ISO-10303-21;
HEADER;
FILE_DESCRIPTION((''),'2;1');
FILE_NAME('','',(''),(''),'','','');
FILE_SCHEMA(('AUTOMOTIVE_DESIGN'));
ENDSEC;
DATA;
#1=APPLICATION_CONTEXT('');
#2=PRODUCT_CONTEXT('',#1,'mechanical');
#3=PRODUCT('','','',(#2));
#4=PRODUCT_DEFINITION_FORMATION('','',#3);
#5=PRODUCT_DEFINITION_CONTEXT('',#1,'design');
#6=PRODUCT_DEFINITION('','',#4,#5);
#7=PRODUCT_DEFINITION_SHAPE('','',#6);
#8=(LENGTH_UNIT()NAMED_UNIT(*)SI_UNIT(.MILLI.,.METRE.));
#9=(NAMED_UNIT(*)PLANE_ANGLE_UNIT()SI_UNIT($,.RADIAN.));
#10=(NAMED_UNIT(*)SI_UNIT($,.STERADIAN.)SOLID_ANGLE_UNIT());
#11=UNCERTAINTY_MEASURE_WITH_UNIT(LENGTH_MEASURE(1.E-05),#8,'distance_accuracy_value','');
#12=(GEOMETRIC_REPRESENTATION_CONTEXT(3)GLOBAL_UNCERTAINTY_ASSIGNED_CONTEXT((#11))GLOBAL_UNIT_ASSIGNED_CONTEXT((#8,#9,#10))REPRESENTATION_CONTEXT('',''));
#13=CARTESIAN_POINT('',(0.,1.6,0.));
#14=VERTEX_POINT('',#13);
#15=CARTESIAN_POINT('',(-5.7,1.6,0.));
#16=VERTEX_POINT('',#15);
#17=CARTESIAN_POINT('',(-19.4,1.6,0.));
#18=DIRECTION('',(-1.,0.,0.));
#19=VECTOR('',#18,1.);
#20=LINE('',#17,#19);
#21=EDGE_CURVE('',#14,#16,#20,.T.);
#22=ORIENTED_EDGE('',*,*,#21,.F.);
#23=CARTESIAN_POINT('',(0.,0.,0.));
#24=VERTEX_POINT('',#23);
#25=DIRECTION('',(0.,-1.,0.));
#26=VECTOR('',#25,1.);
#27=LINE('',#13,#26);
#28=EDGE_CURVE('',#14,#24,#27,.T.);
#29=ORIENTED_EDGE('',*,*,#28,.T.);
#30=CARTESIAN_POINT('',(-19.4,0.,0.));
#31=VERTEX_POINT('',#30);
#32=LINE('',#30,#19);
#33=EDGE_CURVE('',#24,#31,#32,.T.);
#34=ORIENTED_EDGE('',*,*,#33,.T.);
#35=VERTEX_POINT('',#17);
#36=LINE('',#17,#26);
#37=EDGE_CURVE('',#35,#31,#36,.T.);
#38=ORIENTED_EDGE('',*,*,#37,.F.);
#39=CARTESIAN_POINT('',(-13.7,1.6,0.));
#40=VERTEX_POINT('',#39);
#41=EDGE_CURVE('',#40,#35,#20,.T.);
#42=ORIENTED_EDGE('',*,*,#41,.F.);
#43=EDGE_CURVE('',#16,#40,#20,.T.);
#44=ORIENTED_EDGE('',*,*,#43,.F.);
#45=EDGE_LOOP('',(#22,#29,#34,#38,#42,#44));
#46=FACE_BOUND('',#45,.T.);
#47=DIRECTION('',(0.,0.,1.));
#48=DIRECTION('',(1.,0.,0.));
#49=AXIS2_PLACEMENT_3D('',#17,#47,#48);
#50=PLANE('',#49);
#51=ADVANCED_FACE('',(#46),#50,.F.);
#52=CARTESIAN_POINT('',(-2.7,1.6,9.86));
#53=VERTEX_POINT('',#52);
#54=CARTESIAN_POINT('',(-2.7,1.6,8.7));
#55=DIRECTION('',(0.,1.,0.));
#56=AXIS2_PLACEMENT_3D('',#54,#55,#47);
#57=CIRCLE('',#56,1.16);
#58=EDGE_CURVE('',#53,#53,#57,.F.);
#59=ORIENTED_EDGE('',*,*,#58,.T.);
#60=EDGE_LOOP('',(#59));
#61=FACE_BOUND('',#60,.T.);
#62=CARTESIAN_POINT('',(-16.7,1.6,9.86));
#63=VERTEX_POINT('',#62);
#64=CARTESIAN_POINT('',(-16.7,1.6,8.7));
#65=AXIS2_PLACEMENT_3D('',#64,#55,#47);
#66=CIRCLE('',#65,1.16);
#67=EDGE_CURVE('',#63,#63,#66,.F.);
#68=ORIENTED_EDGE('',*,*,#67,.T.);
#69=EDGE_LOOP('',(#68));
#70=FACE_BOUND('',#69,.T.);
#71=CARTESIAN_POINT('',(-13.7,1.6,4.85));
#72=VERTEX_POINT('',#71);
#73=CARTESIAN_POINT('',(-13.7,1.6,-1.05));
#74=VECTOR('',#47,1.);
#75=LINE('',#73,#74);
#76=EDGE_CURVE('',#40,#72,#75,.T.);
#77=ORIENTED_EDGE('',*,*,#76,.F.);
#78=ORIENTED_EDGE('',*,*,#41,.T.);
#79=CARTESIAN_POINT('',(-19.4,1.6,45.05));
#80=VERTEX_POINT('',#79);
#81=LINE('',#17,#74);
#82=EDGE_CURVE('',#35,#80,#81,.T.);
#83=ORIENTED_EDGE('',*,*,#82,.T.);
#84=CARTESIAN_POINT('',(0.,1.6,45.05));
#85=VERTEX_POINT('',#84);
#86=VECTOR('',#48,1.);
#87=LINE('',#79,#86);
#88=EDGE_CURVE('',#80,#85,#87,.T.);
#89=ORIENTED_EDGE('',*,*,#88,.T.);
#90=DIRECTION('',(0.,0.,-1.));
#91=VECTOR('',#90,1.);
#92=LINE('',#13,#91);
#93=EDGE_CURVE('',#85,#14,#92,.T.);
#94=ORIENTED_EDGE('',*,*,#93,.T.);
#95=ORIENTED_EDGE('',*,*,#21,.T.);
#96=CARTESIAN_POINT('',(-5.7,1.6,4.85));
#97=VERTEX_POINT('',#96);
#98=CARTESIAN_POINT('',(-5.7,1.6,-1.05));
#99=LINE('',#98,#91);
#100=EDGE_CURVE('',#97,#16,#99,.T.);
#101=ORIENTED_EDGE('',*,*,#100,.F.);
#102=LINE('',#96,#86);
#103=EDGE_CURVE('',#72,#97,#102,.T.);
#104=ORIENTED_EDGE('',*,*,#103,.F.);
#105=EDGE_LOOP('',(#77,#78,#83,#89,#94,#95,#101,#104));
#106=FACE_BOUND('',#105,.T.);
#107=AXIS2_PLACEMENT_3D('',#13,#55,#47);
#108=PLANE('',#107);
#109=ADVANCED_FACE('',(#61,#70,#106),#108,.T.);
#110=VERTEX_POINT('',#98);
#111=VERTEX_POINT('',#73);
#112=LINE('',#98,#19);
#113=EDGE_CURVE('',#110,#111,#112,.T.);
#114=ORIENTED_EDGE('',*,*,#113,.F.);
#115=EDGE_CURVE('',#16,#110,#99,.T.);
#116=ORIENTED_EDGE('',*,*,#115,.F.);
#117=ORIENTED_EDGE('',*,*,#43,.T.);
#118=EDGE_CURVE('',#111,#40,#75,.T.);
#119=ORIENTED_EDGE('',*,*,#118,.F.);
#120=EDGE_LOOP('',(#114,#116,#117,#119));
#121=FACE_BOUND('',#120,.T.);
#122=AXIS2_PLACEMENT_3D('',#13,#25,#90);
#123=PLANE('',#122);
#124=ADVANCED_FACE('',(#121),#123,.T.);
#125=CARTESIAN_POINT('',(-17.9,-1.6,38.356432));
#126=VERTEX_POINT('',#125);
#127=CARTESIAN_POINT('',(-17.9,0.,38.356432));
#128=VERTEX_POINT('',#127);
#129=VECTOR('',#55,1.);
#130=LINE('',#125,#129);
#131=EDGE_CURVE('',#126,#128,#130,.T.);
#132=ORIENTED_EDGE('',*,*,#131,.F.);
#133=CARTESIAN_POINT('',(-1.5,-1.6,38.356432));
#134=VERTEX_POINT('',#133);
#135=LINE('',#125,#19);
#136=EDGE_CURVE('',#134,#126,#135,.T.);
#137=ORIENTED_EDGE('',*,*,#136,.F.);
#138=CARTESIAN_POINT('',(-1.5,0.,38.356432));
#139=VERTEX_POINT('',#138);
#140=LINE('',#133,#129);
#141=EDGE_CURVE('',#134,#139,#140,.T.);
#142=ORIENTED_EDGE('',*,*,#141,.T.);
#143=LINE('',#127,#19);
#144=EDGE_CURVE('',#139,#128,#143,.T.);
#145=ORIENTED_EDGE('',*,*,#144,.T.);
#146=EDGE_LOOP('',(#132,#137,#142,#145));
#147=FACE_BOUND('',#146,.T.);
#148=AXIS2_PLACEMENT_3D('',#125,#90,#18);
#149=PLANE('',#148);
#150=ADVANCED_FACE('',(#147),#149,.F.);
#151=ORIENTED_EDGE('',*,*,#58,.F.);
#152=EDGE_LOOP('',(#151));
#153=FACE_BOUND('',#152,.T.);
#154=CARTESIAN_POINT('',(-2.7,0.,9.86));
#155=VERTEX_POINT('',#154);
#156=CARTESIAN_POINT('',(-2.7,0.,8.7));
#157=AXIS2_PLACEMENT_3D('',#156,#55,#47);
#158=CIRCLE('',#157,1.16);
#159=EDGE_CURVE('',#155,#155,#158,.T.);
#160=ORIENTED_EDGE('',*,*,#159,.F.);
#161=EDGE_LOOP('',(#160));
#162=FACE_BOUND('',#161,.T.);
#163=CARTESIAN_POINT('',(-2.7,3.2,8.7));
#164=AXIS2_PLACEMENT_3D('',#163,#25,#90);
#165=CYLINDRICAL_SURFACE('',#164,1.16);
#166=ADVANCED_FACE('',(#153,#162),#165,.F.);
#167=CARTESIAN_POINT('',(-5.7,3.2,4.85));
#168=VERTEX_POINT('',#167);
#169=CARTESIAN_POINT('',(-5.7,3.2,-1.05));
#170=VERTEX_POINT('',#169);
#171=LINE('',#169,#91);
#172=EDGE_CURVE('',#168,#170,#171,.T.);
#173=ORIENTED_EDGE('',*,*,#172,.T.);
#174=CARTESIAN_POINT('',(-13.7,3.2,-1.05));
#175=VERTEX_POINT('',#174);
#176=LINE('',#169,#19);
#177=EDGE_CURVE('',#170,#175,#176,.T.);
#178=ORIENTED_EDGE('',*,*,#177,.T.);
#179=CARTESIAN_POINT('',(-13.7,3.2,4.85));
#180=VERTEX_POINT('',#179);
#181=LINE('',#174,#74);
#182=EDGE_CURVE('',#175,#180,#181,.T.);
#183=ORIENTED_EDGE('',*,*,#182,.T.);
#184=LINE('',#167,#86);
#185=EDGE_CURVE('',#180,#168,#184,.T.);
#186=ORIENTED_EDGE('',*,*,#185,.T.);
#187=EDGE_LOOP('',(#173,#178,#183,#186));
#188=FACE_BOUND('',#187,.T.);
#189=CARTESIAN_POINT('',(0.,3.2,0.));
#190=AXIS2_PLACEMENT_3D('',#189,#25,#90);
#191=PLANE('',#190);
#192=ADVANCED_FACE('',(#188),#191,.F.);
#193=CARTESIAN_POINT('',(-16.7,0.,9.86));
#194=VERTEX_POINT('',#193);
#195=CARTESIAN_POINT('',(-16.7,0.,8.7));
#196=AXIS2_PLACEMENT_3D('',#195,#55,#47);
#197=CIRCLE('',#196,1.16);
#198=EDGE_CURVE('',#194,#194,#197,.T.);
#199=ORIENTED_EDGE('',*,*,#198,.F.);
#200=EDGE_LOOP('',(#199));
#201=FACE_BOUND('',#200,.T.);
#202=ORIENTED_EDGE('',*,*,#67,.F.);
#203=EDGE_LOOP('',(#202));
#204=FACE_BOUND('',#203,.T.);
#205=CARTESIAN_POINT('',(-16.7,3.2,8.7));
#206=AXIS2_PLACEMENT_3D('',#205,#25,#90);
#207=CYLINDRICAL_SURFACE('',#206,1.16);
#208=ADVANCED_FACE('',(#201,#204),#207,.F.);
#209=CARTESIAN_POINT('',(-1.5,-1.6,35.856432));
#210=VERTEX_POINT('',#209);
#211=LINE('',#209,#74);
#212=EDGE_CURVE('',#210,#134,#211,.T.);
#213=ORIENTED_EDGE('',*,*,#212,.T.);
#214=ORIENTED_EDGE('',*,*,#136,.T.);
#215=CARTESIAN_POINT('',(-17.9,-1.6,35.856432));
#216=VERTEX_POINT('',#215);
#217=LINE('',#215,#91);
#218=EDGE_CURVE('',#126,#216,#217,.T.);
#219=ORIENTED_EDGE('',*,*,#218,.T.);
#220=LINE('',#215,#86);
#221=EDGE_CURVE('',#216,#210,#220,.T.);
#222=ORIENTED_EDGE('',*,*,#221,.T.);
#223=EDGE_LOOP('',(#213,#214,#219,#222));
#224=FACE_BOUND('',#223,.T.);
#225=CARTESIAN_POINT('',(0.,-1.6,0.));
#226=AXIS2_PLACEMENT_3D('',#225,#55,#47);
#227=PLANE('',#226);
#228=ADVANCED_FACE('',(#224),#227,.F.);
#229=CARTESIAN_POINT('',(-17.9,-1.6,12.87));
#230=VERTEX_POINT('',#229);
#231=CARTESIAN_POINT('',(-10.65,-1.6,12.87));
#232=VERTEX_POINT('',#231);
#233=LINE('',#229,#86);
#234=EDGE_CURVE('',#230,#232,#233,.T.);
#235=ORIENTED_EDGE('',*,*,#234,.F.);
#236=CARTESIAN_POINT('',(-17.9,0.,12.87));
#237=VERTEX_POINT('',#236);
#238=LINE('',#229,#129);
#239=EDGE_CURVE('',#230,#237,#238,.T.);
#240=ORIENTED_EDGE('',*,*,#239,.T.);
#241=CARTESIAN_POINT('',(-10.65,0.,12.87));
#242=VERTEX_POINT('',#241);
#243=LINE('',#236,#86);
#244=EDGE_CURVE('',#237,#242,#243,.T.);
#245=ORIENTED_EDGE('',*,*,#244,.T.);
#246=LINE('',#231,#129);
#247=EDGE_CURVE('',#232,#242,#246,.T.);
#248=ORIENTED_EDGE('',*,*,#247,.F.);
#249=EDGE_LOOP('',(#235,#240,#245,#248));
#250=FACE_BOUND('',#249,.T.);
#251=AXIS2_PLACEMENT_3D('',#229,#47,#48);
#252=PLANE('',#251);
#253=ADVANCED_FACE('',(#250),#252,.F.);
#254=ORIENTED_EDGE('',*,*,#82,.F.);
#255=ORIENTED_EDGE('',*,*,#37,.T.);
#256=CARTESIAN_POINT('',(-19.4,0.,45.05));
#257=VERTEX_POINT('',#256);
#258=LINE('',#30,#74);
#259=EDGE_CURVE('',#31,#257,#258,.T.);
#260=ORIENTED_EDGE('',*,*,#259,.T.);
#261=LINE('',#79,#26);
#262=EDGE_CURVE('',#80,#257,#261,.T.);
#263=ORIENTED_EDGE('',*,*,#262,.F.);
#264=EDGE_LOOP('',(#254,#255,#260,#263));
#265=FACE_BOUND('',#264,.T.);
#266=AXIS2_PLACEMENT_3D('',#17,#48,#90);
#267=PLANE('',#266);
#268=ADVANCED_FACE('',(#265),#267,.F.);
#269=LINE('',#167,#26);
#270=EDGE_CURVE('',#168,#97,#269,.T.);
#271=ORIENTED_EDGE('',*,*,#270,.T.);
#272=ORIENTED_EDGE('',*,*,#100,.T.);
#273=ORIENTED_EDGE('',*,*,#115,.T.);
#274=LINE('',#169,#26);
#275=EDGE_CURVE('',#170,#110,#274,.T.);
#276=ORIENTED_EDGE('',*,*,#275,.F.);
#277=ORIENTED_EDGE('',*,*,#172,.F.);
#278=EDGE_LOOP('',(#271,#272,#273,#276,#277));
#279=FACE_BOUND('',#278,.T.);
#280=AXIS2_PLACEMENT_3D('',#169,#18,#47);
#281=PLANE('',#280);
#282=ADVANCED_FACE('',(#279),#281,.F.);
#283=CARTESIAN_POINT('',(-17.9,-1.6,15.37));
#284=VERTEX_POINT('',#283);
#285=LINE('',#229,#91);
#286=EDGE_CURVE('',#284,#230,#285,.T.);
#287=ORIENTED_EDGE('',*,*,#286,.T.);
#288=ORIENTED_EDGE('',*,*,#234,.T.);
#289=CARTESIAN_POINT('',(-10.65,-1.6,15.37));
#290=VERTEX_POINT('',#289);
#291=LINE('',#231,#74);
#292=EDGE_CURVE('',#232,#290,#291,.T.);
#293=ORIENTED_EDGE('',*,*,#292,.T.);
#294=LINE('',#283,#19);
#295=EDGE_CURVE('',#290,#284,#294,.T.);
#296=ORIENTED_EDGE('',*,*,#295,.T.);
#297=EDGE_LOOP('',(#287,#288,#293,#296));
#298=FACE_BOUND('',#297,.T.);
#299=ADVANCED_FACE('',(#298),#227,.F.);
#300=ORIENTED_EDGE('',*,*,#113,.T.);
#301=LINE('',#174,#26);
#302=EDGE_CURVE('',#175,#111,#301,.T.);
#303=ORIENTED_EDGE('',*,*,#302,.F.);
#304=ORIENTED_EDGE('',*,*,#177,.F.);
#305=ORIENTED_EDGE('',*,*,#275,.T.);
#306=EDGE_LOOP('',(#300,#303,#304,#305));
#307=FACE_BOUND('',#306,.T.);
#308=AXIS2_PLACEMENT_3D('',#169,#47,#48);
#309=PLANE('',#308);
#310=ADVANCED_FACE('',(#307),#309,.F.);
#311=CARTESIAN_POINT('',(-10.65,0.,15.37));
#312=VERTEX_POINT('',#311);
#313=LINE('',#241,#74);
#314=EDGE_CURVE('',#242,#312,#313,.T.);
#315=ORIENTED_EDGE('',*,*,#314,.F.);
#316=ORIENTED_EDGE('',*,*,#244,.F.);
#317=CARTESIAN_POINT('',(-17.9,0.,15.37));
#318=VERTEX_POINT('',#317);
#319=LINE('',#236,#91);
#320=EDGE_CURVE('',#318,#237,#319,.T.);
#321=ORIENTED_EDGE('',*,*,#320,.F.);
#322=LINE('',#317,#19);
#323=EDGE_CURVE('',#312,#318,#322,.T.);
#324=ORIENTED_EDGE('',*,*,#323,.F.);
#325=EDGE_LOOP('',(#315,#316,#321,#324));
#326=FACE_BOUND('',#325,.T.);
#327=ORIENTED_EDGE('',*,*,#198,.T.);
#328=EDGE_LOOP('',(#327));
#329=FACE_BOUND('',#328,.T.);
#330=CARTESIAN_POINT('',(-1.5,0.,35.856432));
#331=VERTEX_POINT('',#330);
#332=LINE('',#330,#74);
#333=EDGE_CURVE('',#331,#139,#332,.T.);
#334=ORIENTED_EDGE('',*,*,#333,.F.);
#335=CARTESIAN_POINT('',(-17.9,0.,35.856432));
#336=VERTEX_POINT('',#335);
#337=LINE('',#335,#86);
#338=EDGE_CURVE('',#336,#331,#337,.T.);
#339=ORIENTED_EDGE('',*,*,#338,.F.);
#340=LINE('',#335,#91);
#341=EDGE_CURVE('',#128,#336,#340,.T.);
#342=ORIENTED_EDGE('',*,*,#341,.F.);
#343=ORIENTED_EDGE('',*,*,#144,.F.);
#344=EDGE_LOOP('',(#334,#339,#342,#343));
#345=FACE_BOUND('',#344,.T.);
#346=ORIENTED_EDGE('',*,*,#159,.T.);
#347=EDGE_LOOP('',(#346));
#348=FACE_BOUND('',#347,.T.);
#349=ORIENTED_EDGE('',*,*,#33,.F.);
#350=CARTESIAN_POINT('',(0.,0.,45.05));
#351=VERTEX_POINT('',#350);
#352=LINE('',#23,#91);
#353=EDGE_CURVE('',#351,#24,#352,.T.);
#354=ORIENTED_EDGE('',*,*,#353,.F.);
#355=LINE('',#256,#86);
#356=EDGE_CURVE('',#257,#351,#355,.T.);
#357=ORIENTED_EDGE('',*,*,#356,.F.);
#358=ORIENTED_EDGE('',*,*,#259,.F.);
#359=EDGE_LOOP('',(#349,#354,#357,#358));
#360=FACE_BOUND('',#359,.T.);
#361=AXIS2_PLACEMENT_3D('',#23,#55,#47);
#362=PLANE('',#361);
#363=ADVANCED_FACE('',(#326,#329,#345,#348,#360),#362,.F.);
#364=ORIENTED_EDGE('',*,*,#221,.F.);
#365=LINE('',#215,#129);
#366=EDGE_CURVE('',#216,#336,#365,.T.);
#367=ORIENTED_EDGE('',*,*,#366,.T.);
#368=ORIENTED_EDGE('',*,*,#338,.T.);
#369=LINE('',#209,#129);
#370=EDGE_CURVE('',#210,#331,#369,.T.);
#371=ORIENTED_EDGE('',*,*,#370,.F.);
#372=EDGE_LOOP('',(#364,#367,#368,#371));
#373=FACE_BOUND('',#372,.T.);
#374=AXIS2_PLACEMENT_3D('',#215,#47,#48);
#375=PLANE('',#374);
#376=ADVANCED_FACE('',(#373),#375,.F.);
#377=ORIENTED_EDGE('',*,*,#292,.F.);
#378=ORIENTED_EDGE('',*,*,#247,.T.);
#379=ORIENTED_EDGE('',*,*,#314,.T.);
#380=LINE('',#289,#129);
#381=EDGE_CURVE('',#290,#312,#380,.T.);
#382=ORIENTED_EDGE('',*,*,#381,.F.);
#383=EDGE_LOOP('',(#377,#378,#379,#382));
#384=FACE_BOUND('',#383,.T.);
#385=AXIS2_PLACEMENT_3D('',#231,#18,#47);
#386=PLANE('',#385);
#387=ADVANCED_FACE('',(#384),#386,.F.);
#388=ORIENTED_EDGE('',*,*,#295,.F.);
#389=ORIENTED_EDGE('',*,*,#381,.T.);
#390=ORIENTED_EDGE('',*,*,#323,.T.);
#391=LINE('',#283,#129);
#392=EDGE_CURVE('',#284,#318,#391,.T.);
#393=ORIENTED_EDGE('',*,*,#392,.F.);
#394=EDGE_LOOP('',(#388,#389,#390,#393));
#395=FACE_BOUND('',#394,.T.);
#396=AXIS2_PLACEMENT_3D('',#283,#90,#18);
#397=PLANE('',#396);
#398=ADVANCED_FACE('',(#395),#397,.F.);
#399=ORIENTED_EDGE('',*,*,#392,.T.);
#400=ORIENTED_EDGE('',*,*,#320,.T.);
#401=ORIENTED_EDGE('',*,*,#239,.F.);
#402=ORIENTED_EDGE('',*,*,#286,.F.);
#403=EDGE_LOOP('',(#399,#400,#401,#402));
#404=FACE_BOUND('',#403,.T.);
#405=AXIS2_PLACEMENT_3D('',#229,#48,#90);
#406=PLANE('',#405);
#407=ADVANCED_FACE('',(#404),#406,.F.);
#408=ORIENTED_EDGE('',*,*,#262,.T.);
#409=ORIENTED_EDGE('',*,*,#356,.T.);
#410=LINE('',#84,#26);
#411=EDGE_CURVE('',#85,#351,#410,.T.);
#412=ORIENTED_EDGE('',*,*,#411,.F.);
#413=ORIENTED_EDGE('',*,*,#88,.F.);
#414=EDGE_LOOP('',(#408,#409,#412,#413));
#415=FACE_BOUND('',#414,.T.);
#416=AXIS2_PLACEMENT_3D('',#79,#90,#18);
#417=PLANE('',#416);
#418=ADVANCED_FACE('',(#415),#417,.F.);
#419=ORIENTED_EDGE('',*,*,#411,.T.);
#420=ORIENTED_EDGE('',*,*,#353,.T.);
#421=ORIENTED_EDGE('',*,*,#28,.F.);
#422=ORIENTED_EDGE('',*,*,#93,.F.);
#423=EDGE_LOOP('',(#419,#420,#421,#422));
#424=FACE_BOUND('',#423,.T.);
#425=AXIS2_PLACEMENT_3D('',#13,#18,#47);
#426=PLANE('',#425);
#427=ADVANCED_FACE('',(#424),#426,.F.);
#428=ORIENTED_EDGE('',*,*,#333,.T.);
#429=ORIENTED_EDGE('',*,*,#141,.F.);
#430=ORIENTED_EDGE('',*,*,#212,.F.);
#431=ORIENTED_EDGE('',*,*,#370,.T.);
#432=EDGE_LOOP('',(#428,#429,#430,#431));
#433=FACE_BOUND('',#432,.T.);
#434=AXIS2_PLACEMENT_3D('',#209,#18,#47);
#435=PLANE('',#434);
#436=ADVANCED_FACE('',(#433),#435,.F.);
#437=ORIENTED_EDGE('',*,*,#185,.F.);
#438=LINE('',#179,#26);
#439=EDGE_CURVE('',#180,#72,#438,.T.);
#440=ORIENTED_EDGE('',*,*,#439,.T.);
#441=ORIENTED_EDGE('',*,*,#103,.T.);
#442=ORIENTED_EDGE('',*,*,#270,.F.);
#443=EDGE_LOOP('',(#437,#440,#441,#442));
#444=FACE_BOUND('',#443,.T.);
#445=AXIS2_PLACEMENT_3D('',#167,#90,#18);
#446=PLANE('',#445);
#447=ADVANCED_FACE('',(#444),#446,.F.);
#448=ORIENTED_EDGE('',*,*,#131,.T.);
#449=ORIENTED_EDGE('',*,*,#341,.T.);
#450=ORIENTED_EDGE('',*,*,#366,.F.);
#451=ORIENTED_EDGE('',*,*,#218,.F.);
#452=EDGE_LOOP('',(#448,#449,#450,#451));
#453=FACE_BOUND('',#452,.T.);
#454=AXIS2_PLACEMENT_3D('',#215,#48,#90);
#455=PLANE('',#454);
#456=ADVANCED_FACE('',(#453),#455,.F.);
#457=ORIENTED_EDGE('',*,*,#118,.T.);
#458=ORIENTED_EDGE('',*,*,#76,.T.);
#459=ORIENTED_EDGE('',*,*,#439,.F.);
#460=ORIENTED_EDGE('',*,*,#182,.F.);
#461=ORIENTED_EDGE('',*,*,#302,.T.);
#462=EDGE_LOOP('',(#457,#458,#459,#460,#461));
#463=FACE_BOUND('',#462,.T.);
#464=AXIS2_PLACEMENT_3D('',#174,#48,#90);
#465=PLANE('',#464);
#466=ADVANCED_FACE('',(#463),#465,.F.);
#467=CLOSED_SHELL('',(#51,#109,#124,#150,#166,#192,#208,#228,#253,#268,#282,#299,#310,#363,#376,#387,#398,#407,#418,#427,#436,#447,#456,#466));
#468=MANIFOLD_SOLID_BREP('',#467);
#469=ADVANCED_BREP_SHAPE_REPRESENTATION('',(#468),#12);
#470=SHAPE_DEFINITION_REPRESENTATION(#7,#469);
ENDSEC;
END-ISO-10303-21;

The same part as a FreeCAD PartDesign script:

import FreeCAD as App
import Part
import Sketcher


def add_polygon(sketch, points):
    """Adds a closed chain of lines whose ends are joined by coincident constraints."""
    first, n = sketch.GeometryCount, len(points)
    for a, b in zip(points, points[1:] + points[:1]):
        sketch.addGeometry(Part.LineSegment(App.Vector(*a, 0), App.Vector(*b, 0)), False)
    for i in range(n):
        sketch.addConstraint(Sketcher.Constraint("Coincident", first + i, 2, first + (i + 1) % n, 1))

doc = App.newDocument("Part")
body = doc.addObject("PartDesign::Body", "Body")

# Sketch on XZ plane
sketch1 = body.newObject("Sketcher::SketchObject", "Sketch")
sketch1.AttachmentSupport = (doc.getObject("XZ_Plane"), [""])
sketch1.MapMode = "FlatFace"
add_polygon(sketch1, [(-19, 0), (-19, 45), (0, 45), (0, 0)])  # lines 0-3
sketch1.addConstraint([
    Sketcher.Constraint("Vertical", 0),
    Sketcher.Constraint("Horizontal", 1),
    Sketcher.Constraint("Vertical", 2),
    Sketcher.Constraint("Horizontal", 3),
    Sketcher.Constraint("Coincident", 2, 2, -1, 1),
    Sketcher.Constraint("DistanceX", 1, 1, 1, 2, 19.4),
    Sketcher.Constraint("DistanceY", 0, 1, 0, 2, 45.05),
])
pad1 = body.newObject("PartDesign::Pad", "Pad")
pad1.Profile = sketch1
pad1.Length = 1.6
pad1.Reversed = True

# Sketch on XZ plane
sketch2 = body.newObject("Sketcher::SketchObject", "Sketch001")
sketch2.AttachmentSupport = (doc.getObject("XZ_Plane"), [""])
sketch2.MapMode = "FlatFace"
sketch2.AttachmentOffset = App.Placement(App.Vector(0, 0, -1.6), App.Rotation())
add_polygon(sketch2, [(-14, -1), (-14, 5), (-6, 5), (-6, -1)])  # lines 0-3
sketch2.addConstraint([
    Sketcher.Constraint("Vertical", 0),
    Sketcher.Constraint("Horizontal", 1),
    Sketcher.Constraint("Vertical", 2),
    Sketcher.Constraint("Horizontal", 3),
    Sketcher.Constraint("DistanceX", 1, 1, 1, 2, 8.0),
    Sketcher.Constraint("DistanceY", 0, 1, 0, 2, 5.9),
    Sketcher.Constraint("DistanceX", 0, 2, -1, 1, 13.7),
    Sketcher.Constraint("DistanceY", -1, 1, 0, 2, 4.85),
])
pad2 = body.newObject("PartDesign::Pad", "Pad001")
pad2.Profile = sketch2
pad2.Length = 1.6
pad2.Reversed = True

# Sketch on XZ plane
sketch3 = body.newObject("Sketcher::SketchObject", "Sketch002")
sketch3.AttachmentSupport = (doc.getObject("XZ_Plane"), [""])
sketch3.MapMode = "FlatFace"
sketch3.addGeometry([
    Part.Circle(App.Vector(-16.7, 8.7, 0), App.Vector(0, 0, 1), 1.2),
    Part.Circle(App.Vector(-2.7, 8.7, 0), App.Vector(0, 0, 1), 1.2),
], False)
sketch3.addConstraint([
    Sketcher.Constraint("Equal", 0, 1),
    Sketcher.Constraint("Horizontal", 0, 3, 1, 3),
    Sketcher.Constraint("Diameter", 0, 2.32),
    Sketcher.Constraint("DistanceX", 0, 3, 1, 3, 14.0),
    Sketcher.Constraint("DistanceX", 0, 3, -1, 1, 16.7),
    Sketcher.Constraint("DistanceY", -1, 1, 0, 3, 8.7),
])
pocket1 = body.newObject("PartDesign::Pocket", "Pocket")
pocket1.Profile = sketch3
pocket1.Type = "ThroughAll"

# Sketch on XZ plane
sketch4 = body.newObject("Sketcher::SketchObject", "Sketch003")
sketch4.AttachmentSupport = (doc.getObject("XZ_Plane"), [""])
sketch4.MapMode = "FlatFace"
add_polygon(sketch4, [(-17.9, 15.4), (-17.9, 12.9), (-10.7, 12.9), (-10.7, 15.4)])  # lines 0-3
add_polygon(sketch4, [(-17.9, 38.4), (-17.9, 35.9), (-1.5, 35.9), (-1.5, 38.4)])  # lines 4-7
sketch4.addConstraint([
    Sketcher.Constraint("Vertical", 0),
    Sketcher.Constraint("Horizontal", 1),
    Sketcher.Constraint("Vertical", 2),
    Sketcher.Constraint("Horizontal", 3),
    Sketcher.Constraint("Vertical", 4),
    Sketcher.Constraint("Horizontal", 5),
    Sketcher.Constraint("Vertical", 6),
    Sketcher.Constraint("Horizontal", 7),
    Sketcher.Constraint("Vertical", 3, 2, 4, 2),
    Sketcher.Constraint("Equal", 2, 4),
    Sketcher.Constraint("DistanceX", 5, 1, 5, 2, 16.4),
    Sketcher.Constraint("DistanceY", 0, 2, 0, 1, 2.5),
    Sketcher.Constraint("DistanceX", 1, 1, 1, 2, 7.25),
    Sketcher.Constraint("DistanceX", 0, 2, -1, 1, 17.9),
    Sketcher.Constraint("DistanceY", -1, 1, 0, 2, 12.87),
    Sketcher.Constraint("DistanceY", -1, 1, 4, 2, 35.856432),
])
pad3 = body.newObject("PartDesign::Pad", "Pad002")
pad3.Profile = sketch4
pad3.Length = 1.6

doc.recompute()
